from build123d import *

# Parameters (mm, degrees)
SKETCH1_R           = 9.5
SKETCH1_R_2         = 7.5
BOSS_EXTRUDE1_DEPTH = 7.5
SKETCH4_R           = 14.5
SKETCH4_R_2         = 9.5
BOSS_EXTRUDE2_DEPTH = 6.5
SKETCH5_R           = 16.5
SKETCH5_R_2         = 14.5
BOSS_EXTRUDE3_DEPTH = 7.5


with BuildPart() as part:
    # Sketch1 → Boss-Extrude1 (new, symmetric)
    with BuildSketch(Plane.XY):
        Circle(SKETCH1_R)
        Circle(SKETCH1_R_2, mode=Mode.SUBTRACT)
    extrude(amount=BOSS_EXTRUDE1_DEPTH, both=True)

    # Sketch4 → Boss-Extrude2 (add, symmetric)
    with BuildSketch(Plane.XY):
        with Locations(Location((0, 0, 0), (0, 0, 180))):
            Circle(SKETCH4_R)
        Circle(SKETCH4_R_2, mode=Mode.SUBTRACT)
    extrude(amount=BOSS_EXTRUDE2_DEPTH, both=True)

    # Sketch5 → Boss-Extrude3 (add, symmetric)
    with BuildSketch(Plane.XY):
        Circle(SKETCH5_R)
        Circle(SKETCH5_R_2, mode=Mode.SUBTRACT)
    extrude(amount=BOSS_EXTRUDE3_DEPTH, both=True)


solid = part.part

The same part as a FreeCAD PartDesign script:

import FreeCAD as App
import Part
import Sketcher

V = App.Vector

doc = App.newDocument("Part")
body = doc.addObject("PartDesign::Body", "Body")

sketch1 = body.newObject("Sketcher::SketchObject", "Sketch")
sketch1.AttachmentSupport = (doc.getObject("XY_Plane"), [""])
sketch1.MapMode = "FlatFace"
sketch1.addGeometry(Part.Circle(V(0, 0, 0), V(0, 0, 1), 10), False)
sketch1.addGeometry(Part.Circle(V(0, 0, 0), V(0, 0, 1), 8), False)
sketch1.addConstraint(Sketcher.Constraint("Coincident", 0, 3, -1, 1))
sketch1.addConstraint(Sketcher.Constraint("Coincident", 1, 3, -1, 1))
sketch1.addConstraint(Sketcher.Constraint("Diameter", 0, 19.0))
sketch1.addConstraint(Sketcher.Constraint("Diameter", 1, 15.0))
pad1 = body.newObject("PartDesign::Pad", "Pad")
pad1.Profile = sketch1
pad1.Length = 15
pad1.Midplane = True

sketch2 = body.newObject("Sketcher::SketchObject", "Sketch001")
sketch2.AttachmentSupport = (doc.getObject("XY_Plane"), [""])
sketch2.MapMode = "FlatFace"
sketch2.addGeometry(Part.Circle(V(0, 0, 0), V(0, 0, 1), 14), False)
sketch2.addGeometry(Part.Circle(V(0, 0, 0), V(0, 0, 1), 10), False)
sketch2.addConstraint(Sketcher.Constraint("Coincident", 0, 3, -1, 1))
sketch2.addConstraint(Sketcher.Constraint("Coincident", 1, 3, -1, 1))
sketch2.addConstraint(Sketcher.Constraint("Diameter", 0, 29.0))
sketch2.addConstraint(Sketcher.Constraint("Diameter", 1, 19.0))
pad2 = body.newObject("PartDesign::Pad", "Pad001")
pad2.Profile = sketch2
pad2.Length = 13
pad2.Midplane = True

sketch3 = body.newObject("Sketcher::SketchObject", "Sketch002")
sketch3.AttachmentSupport = (doc.getObject("XY_Plane"), [""])
sketch3.MapMode = "FlatFace"
sketch3.addGeometry(Part.Circle(V(0, 0, 0), V(0, 0, 1), 16), False)
sketch3.addGeometry(Part.Circle(V(0, 0, 0), V(0, 0, 1), 14), False)
sketch3.addConstraint(Sketcher.Constraint("Coincident", 0, 3, -1, 1))
sketch3.addConstraint(Sketcher.Constraint("Coincident", 1, 3, -1, 1))
sketch3.addConstraint(Sketcher.Constraint("Diameter", 0, 33.0))
sketch3.addConstraint(Sketcher.Constraint("Diameter", 1, 29.0))
pad3 = body.newObject("PartDesign::Pad", "Pad002")
pad3.Profile = sketch3
pad3.Length = 15
pad3.Midplane = True

doc.recompute()
